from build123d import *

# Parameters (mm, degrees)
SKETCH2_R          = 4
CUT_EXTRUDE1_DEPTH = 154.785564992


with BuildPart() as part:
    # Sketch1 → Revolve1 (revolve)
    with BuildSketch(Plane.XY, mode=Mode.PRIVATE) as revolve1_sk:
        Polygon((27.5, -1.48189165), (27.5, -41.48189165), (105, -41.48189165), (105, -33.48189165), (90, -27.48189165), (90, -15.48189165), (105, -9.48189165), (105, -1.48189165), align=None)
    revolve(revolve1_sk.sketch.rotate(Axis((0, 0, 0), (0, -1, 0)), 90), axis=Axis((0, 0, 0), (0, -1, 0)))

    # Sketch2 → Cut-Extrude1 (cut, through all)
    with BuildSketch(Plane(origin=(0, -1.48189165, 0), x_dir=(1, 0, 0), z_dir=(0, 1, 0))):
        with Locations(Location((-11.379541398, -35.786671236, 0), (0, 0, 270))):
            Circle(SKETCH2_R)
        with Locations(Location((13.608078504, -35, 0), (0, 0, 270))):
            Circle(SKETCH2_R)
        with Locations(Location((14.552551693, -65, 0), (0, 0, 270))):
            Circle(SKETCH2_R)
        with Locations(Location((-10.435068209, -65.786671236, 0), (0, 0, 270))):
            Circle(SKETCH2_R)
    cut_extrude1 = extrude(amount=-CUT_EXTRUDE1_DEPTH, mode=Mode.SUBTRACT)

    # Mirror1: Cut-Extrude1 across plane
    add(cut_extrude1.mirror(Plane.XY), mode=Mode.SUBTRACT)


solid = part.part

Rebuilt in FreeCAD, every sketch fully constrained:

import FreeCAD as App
import Part
import Sketcher


def add_polygon(sketch, points):
    """Adds a closed chain of lines whose ends are joined by coincident constraints."""
    first, n = sketch.GeometryCount, len(points)
    for a, b in zip(points, points[1:] + points[:1]):
        sketch.addGeometry(Part.LineSegment(App.Vector(*a, 0), App.Vector(*b, 0)), False)
    for i in range(n):
        sketch.addConstraint(Sketcher.Constraint("Coincident", first + i, 2, first + (i + 1) % n, 1))

doc = App.newDocument("Part")
body = doc.addObject("PartDesign::Body", "Body")

# Sketch on XY plane
sketch1 = body.newObject("Sketcher::SketchObject", "Sketch")
sketch1.AttachmentSupport = (doc.getObject("XY_Plane"), [""])
sketch1.MapMode = "FlatFace"
add_polygon(sketch1, [(28, -1), (28, -41), (105, -41), (105, -33), (90, -27), (90, -15), (105, -9), (105, -1)])  # lines 0-7
sketch1.addConstraint(Sketcher.Constraint("Vertical", 0))
sketch1.addConstraint(Sketcher.Constraint("Horizontal", 1))
sketch1.addConstraint(Sketcher.Constraint("Vertical", 2))
sketch1.addConstraint(Sketcher.Constraint("Vertical", 4))
sketch1.addConstraint(Sketcher.Constraint("Vertical", 6))
sketch1.addConstraint(Sketcher.Constraint("Horizontal", 7))
sketch1.addConstraint(Sketcher.Constraint("Vertical", 2, 2, 5, 2))
sketch1.addConstraint(Sketcher.Constraint("Equal", 2, 6))
sketch1.addConstraint(Sketcher.Constraint("Equal", 3, 5))
sketch1.addConstraint(Sketcher.Constraint("DistanceY", 0, 2, 0, 1, 40.0))
sketch1.addConstraint(Sketcher.Constraint("DistanceY", 2, 1, 2, 2, 8.0))
sketch1.addConstraint(Sketcher.Constraint("DistanceY", 4, 1, 4, 2, 12.0))
sketch1.addConstraint(Sketcher.Constraint("DistanceX", 1, 1, 1, 2, 77.5))
sketch1.addConstraint(Sketcher.Constraint("DistanceX", -1, 1, 1, 2, 105.0))
sketch1.addConstraint(Sketcher.Constraint("DistanceX", -1, 1, 3, 2, 90.0))
sketch1.addConstraint(Sketcher.Constraint("DistanceY", 0, 2, -1, 1, 41.481892))
revolution = body.newObject("PartDesign::Revolution", "Revolution")
revolution.Profile = sketch1
revolution.ReferenceAxis = (sketch1, ["V_Axis"])
revolution.Angle = 360

# Sketch on XZ plane
sketch2 = body.newObject("Sketcher::SketchObject", "Sketch001")
sketch2.AttachmentSupport = (doc.getObject("XZ_Plane"), [""])
sketch2.MapMode = "FlatFace"
sketch2.AttachmentOffset = App.Placement(App.Vector(0, 0, 1.481892), App.Rotation())
sketch2.addGeometry(Part.Circle(App.Vector(-11.4, 35.8, 0), App.Vector(0, 0, 1), 4), False)
sketch2.addGeometry(Part.Circle(App.Vector(13.6, 35, 0), App.Vector(0, 0, 1), 4), False)
sketch2.addGeometry(Part.Circle(App.Vector(14.6, 65, 0), App.Vector(0, 0, 1), 4), False)
sketch2.addGeometry(Part.Circle(App.Vector(-10.4, 65.8, 0), App.Vector(0, 0, 1), 4), False)
sketch2.addConstraint(Sketcher.Constraint("Equal", 0, 1))
sketch2.addConstraint(Sketcher.Constraint("Equal", 1, 2))
sketch2.addConstraint(Sketcher.Constraint("Equal", 2, 3))
sketch2.addConstraint(Sketcher.Constraint("Diameter", 0, 8.0))
sketch2.addConstraint(Sketcher.Constraint("DistanceY", -1, 1, 1, 3, 35.0))
sketch2.addConstraint(Sketcher.Constraint("DistanceY", -1, 1, 2, 3, 65.0))
sketch2.addConstraint(Sketcher.Constraint("DistanceY", 0, 3, 3, 3, 30.0))
sketch2.addConstraint(Sketcher.Constraint("DistanceX", 0, 3, -1, 1, 11.379541))
sketch2.addConstraint(Sketcher.Constraint("DistanceY", -1, 1, 0, 3, 35.786671))
sketch2.addConstraint(Sketcher.Constraint("DistanceX", -1, 1, 1, 3, 13.608079))
sketch2.addConstraint(Sketcher.Constraint("DistanceX", -1, 1, 2, 3, 14.552552))
sketch2.addConstraint(Sketcher.Constraint("DistanceX", 3, 3, -1, 1, 10.435068))
pocket1 = body.newObject("PartDesign::Pocket", "Pocket")
pocket1.Profile = sketch2
pocket1.Type = "ThroughAll"
pocket1.Reversed = True
doc.recompute()

mirrored = body.newObject("PartDesign::Mirrored", "Mirrored")
mirrored.Originals = [pocket1]
mirrored.MirrorPlane = (doc.getObject("XY_Plane"), [""])
body.Tip = mirrored

doc.recompute()
